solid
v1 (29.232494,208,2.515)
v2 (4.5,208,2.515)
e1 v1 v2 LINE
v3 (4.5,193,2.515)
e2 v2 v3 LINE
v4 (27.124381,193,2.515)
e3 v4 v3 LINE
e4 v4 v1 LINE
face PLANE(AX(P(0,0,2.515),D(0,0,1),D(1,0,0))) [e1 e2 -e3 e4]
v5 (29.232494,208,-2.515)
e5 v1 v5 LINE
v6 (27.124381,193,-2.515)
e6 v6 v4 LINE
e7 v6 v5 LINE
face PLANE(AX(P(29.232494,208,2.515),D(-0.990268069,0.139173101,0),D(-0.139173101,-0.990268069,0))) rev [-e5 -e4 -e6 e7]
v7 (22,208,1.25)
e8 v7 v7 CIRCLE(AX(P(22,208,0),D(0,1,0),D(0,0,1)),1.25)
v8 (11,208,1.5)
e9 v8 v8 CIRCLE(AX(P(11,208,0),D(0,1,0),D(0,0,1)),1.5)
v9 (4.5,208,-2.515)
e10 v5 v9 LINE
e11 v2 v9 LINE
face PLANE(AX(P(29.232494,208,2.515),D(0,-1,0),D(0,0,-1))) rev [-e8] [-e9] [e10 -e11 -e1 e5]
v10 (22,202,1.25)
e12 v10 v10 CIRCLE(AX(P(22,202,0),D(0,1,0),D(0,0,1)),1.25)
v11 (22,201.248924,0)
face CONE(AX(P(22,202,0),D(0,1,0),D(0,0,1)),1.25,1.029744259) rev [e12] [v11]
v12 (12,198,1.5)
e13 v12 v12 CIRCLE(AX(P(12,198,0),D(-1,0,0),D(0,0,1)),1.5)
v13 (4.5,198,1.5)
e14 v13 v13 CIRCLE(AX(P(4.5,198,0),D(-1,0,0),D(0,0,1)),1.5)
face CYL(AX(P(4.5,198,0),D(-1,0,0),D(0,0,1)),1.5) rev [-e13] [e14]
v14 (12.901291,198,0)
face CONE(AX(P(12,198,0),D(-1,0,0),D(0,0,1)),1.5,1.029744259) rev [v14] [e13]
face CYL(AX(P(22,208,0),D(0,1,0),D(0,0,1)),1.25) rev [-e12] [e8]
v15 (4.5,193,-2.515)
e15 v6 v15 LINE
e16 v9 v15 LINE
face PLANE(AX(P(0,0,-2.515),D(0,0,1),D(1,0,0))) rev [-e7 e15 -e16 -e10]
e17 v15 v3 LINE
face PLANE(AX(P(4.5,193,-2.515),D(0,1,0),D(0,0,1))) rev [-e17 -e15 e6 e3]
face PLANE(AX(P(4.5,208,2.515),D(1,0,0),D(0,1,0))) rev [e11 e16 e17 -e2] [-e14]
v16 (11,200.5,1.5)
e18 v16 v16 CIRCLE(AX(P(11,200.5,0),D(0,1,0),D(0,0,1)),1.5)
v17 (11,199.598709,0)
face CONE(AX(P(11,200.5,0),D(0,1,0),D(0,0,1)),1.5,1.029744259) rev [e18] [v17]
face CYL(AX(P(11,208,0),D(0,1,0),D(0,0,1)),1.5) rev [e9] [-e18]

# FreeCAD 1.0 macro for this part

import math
import FreeCAD as App
import Part
import Sketcher

V = App.Vector
Q = App.Units.Quantity

doc = App.newDocument("Part")
params = doc.addObject("Spreadsheet::Sheet", "Params")
for row, (alias, value) in enumerate([
    ("sketch1_radius", "20 mm"),
    ("sketch1_radius2", "48 mm"),
    ("pad1_length", "5.03 mm"),
    ("sketch2_width", "7.5 mm"),
    ("sketch2_height", "1.5 mm"),
    ("groove_angle", "360 deg"),
    ("linearpattern_pitch", "37 mm"),
    ("linearpattern2_pitch", "74 mm"),
    ("linearpattern3_pitch", "111 mm"),
    ("linearpattern4_pitch", "148 mm"),
    ("sketch3_width", "7.5 mm"),
    ("sketch3_height", "1.5 mm"),
    ("groove2_angle", "360 deg"),
    ("sketch4_width", "7.5 mm"),
    ("sketch4_height", "1.5 mm"),
    ("groove3_angle", "360 deg"),
    ("sketch5_width", "7.5 mm"),
    ("sketch5_height", "1.5 mm"),
    ("groove4_angle", "360 deg"),
    ("sketch6_width", "7.5 mm"),
    ("sketch6_height", "1.5 mm"),
    ("groove5_angle", "360 deg"),
    ("sketch7_radius", "20 mm"),
    ("sketch7_radius2", "48 mm"),
    ("sketch8_diameter", "3 mm"),
    ("hole_diameter", "3 mm"),
    ("hole_depth", "7.5 mm"),
    ("sketch9_diameter", "2.5 mm"),
    ("hole2_diameter", "2.5 mm"),
    ("hole2_depth", "6 mm"),
], start=1):
    params.set(f"A{row}", alias)
    params.set(f"B{row}", "=" + value)
    params.setAlias(f"B{row}", alias)

body = doc.addObject("PartDesign::Body", "Body")

# Sketch on XY plane
sketch1 = body.newObject("Sketcher::SketchObject", "Sketch")
sketch1.AttachmentSupport = (doc.getObject("XY_Plane"), [""])
sketch1.MapMode = "FlatFace"
sketch1.addGeometry([
    Part.LineSegment(V(29, 208, 0), V(4, 208, 0)),  # 0
    Part.LineSegment(V(4, 208, 0), V(4, 38, 0)),  # 1
    Part.ArcOfCircle(Part.Circle(V(0, 0, 0), V(0, 0, 1), 38), math.radians(-83), math.radians(83)),  # 2
    Part.LineSegment(V(4, -38, 0), V(4, -208, 0)),  # 3
    Part.LineSegment(V(4, -208, 0), V(29, -208, 0)),  # 4
    Part.LineSegment(V(29, -208, 0), V(12, -85, 0)),  # 5
    Part.LineSegment(V(12, -85, 0), V(12, -60, 0)),  # 6
    Part.ArcOfCircle(Part.Circle(V(32, -60, 0), V(0, 0, 1), 20), math.radians(118), math.radians(180)),  # 7
    Part.ArcOfCircle(Part.Circle(V(0, 0, 0), V(0, 0, 1), 48), math.radians(-62), math.radians(62)),  # 8
    Part.ArcOfCircle(Part.Circle(V(32, 60, 0), V(0, 0, 1), 20), math.radians(180), math.radians(242)),  # 9
    Part.LineSegment(V(12, 60, 0), V(12, 85, 0)),  # 10
    Part.LineSegment(V(12, 85, 0), V(29, 208, 0)),  # 11
], False)
sketch1.addConstraint([
    Sketcher.Constraint("Coincident", 0, 2, 1, 1),
    Sketcher.Constraint("Coincident", 1, 2, 2, 2),
    Sketcher.Constraint("Coincident", 2, 1, 3, 1),
    Sketcher.Constraint("Coincident", 3, 2, 4, 1),
    Sketcher.Constraint("Coincident", 4, 2, 5, 1),
    Sketcher.Constraint("Coincident", 5, 2, 6, 1),
    Sketcher.Constraint("Tangent", 6, 2, 7, 2),
    Sketcher.Constraint("Tangent", 7, 1, 8, 1),
    Sketcher.Constraint("Tangent", 8, 2, 9, 2),
    Sketcher.Constraint("Tangent", 9, 1, 10, 1),
    Sketcher.Constraint("Coincident", 10, 2, 11, 1),
    Sketcher.Constraint("Coincident", 11, 2, 0, 1),
    Sketcher.Constraint("Horizontal", 0),
    Sketcher.Constraint("Vertical", 1),
    Sketcher.Constraint("Vertical", 3),
    Sketcher.Constraint("Horizontal", 4),
    Sketcher.Constraint("Vertical", 6),
    Sketcher.Constraint("Vertical", 10),
    Sketcher.Constraint("Coincident", 2, 3, -1, 1),
    Sketcher.Constraint("Coincident", 8, 3, -1, 1),
    Sketcher.Constraint("Equal", 7, 9),
    Sketcher.Constraint("Symmetric", 0, 2, 3, 2, -1),
    Sketcher.Constraint("Symmetric", 5, 2, 10, 2, -1),
    Sketcher.Constraint("Vertical", 4, 2, 11, 2),
    Sketcher.Constraint("Radius", 7, 20.0),
    Sketcher.Constraint("Radius", 8, 48.0),
    Sketcher.Constraint("Angle", 5, Q("98 deg")),
    Sketcher.Constraint("DistanceX", -1, 1, 7, 3, 32.0),
    Sketcher.Constraint("DistanceY", -1, 1, 0, 2, 208.0),
    Sketcher.Constraint("DistanceX", -1, 1, 0, 2, 4.5),
    Sketcher.Constraint("Radius", 2, 38.140072),
    Sketcher.Constraint("DistanceX", 0, 2, 0, 1, 24.732494),
])
sketch1.setExpression("Constraints[24]", "Params.sketch1_radius")
sketch1.setExpression("Constraints[25]", "Params.sketch1_radius2")
pad1 = body.newObject("PartDesign::Pad", "Pad")
pad1.Profile = sketch1
pad1.setExpression("Length", "Params.pad1_length")
pad1.Midplane = True

# Sketch on XZ plane
sketch2 = body.newObject("Sketcher::SketchObject", "Sketch001")
sketch2.AttachmentSupport = (doc.getObject("XZ_Plane"), [""])
sketch2.MapMode = "FlatFace"
sketch2.AttachmentOffset = App.Placement(V(0, 0, -198), App.Rotation())
sketch2.addGeometry([
    Part.LineSegment(V(12.9, 0, 0), V(4.5, 0, 0)),
    Part.LineSegment(V(4.5, 0, 0), V(4.5, 1.5, 0)),
    Part.LineSegment(V(4.5, 1.5, 0), V(12, 1.5, 0)),
    Part.LineSegment(V(12, 1.5, 0), V(12.9, 0, 0)),
], False)
sketch2.addConstraint([
    Sketcher.Constraint("Coincident", 0, 2, 1, 1),
    Sketcher.Constraint("Coincident", 1, 2, 2, 1),
    Sketcher.Constraint("Coincident", 2, 2, 3, 1),
    Sketcher.Constraint("Coincident", 3, 2, 0, 1),
    Sketcher.Constraint("Horizontal", 0),
    Sketcher.Constraint("Vertical", 1),
    Sketcher.Constraint("Horizontal", 2),
    Sketcher.Constraint("PointOnObject", 0, 2, -1),
    Sketcher.Constraint("Angle", 3, Q("-59 deg")),
    Sketcher.Constraint("DistanceX", 2, 1, 2, 2, 7.5),
    Sketcher.Constraint("DistanceY", 1, 1, 1, 2, 1.5),
    Sketcher.Constraint("DistanceX", -1, 1, 2, 2, 12.0),
])
sketch2.setExpression("Constraints[9]", "Params.sketch2_width")
sketch2.setExpression("Constraints[10]", "Params.sketch2_height")
groove = body.newObject("PartDesign::Groove", "Groove")
groove.Profile = sketch2
groove.ReferenceAxis = (sketch2, ["H_Axis"])
groove.setExpression("Angle", "Params.groove_angle")
doc.recompute()

linearpattern = body.newObject("PartDesign::LinearPattern", "LinearPattern")
linearpattern.Originals = [groove]
linearpattern.Direction = (doc.getObject("Y_Axis"), [""])
linearpattern.Mode = "offset"
linearpattern.setExpression("Offset", "Params.linearpattern_pitch")
linearpattern.Occurrences = 2
linearpattern.Reversed = True
body.Tip = linearpattern
doc.recompute()

linearpattern2 = body.newObject("PartDesign::LinearPattern", "LinearPattern001")
linearpattern2.Originals = [groove]
linearpattern2.Direction = (doc.getObject("Y_Axis"), [""])
linearpattern2.Mode = "offset"
linearpattern2.setExpression("Offset", "Params.linearpattern2_pitch")
linearpattern2.Occurrences = 2
linearpattern2.Reversed = True
body.Tip = linearpattern2
doc.recompute()

linearpattern3 = body.newObject("PartDesign::LinearPattern", "LinearPattern002")
linearpattern3.Originals = [groove]
linearpattern3.Direction = (doc.getObject("Y_Axis"), [""])
linearpattern3.Mode = "offset"
linearpattern3.setExpression("Offset", "Params.linearpattern3_pitch")
linearpattern3.Occurrences = 2
linearpattern3.Reversed = True
body.Tip = linearpattern3
doc.recompute()

linearpattern4 = body.newObject("PartDesign::LinearPattern", "LinearPattern003")
linearpattern4.Originals = [groove]
linearpattern4.Direction = (doc.getObject("Y_Axis"), [""])
linearpattern4.Mode = "offset"
linearpattern4.setExpression("Offset", "Params.linearpattern4_pitch")
linearpattern4.Occurrences = 2
linearpattern4.Reversed = True
body.Tip = linearpattern4
doc.recompute()

mirrored = body.newObject("PartDesign::Mirrored", "Mirrored")
mirrored.Originals = [groove]
mirrored.MirrorPlane = (doc.getObject("XZ_Plane"), [""])
body.Tip = mirrored

# Sketch on XZ plane
sketch3 = body.newObject("Sketcher::SketchObject", "Sketch002")
sketch3.AttachmentSupport = (doc.getObject("XZ_Plane"), [""])
sketch3.MapMode = "FlatFace"
sketch3.AttachmentOffset = App.Placement(V(0, 0, 161), App.Rotation())
sketch3.addGeometry([
    Part.LineSegment(V(4.5, 0, 0), V(12.9, 0, 0)),
    Part.LineSegment(V(12.9, 0, 0), V(12, 1.5, 0)),
    Part.LineSegment(V(12, 1.5, 0), V(4.5, 1.5, 0)),
    Part.LineSegment(V(4.5, 1.5, 0), V(4.5, 0, 0)),
], False)
sketch3.addConstraint([
    Sketcher.Constraint("Coincident", 0, 2, 1, 1),
    Sketcher.Constraint("Coincident", 1, 2, 2, 1),
    Sketcher.Constraint("Coincident", 2, 2, 3, 1),
    Sketcher.Constraint("Coincident", 3, 2, 0, 1),
    Sketcher.Constraint("Horizontal", 0),
    Sketcher.Constraint("Horizontal", 2),
    Sketcher.Constraint("Vertical", 3),
    Sketcher.Constraint("PointOnObject", 0, 2, -1),
    Sketcher.Constraint("Angle", 1, Q("121 deg")),
    Sketcher.Constraint("DistanceX", 2, 2, 2, 1, 7.5),
    Sketcher.Constraint("DistanceY", 3, 2, 3, 1, 1.5),
    Sketcher.Constraint("DistanceX", -1, 1, 1, 2, 12.0),
])
sketch3.setExpression("Constraints[9]", "Params.sketch3_width")
sketch3.setExpression("Constraints[10]", "Params.sketch3_height")
groove2 = body.newObject("PartDesign::Groove", "Groove001")
groove2.Profile = sketch3
groove2.ReferenceAxis = (sketch3, ["H_Axis"])
groove2.setExpression("Angle", "Params.groove2_angle")

# Sketch on XZ plane
sketch4 = body.newObject("Sketcher::SketchObject", "Sketch003")
sketch4.AttachmentSupport = (doc.getObject("XZ_Plane"), [""])
sketch4.MapMode = "FlatFace"
sketch4.AttachmentOffset = App.Placement(V(0, 0, 124), App.Rotation())
sketch4.addGeometry([
    Part.LineSegment(V(4.5, 0, 0), V(12.9, 0, 0)),
    Part.LineSegment(V(12.9, 0, 0), V(12, 1.5, 0)),
    Part.LineSegment(V(12, 1.5, 0), V(4.5, 1.5, 0)),
    Part.LineSegment(V(4.5, 1.5, 0), V(4.5, 0, 0)),
], False)
sketch4.addConstraint([
    Sketcher.Constraint("Coincident", 0, 2, 1, 1),
    Sketcher.Constraint("Coincident", 1, 2, 2, 1),
    Sketcher.Constraint("Coincident", 2, 2, 3, 1),
    Sketcher.Constraint("Coincident", 3, 2, 0, 1),
    Sketcher.Constraint("Horizontal", 0),
    Sketcher.Constraint("Horizontal", 2),
    Sketcher.Constraint("Vertical", 3),
    Sketcher.Constraint("PointOnObject", 0, 2, -1),
    Sketcher.Constraint("Angle", 1, Q("121 deg")),
    Sketcher.Constraint("DistanceX", 2, 2, 2, 1, 7.5),
    Sketcher.Constraint("DistanceY", 3, 2, 3, 1, 1.5),
    Sketcher.Constraint("DistanceX", -1, 1, 1, 2, 12.0),
])
sketch4.setExpression("Constraints[9]", "Params.sketch4_width")
sketch4.setExpression("Constraints[10]", "Params.sketch4_height")
groove3 = body.newObject("PartDesign::Groove", "Groove002")
groove3.Profile = sketch4
groove3.ReferenceAxis = (sketch4, ["H_Axis"])
groove3.setExpression("Angle", "Params.groove3_angle")

# Sketch on XZ plane
sketch5 = body.newObject("Sketcher::SketchObject", "Sketch004")
sketch5.AttachmentSupport = (doc.getObject("XZ_Plane"), [""])
sketch5.MapMode = "FlatFace"
sketch5.AttachmentOffset = App.Placement(V(0, 0, 87), App.Rotation())
sketch5.addGeometry([
    Part.LineSegment(V(4.5, 0, 0), V(12.9, 0, 0)),
    Part.LineSegment(V(12.9, 0, 0), V(12, 1.5, 0)),
    Part.LineSegment(V(12, 1.5, 0), V(4.5, 1.5, 0)),
    Part.LineSegment(V(4.5, 1.5, 0), V(4.5, 0, 0)),
], False)
sketch5.addConstraint([
    Sketcher.Constraint("Coincident", 0, 2, 1, 1),
    Sketcher.Constraint("Coincident", 1, 2, 2, 1),
    Sketcher.Constraint("Coincident", 2, 2, 3, 1),
    Sketcher.Constraint("Coincident", 3, 2, 0, 1),
    Sketcher.Constraint("Horizontal", 0),
    Sketcher.Constraint("Horizontal", 2),
    Sketcher.Constraint("Vertical", 3),
    Sketcher.Constraint("PointOnObject", 0, 2, -1),
    Sketcher.Constraint("Angle", 1, Q("121 deg")),
    Sketcher.Constraint("DistanceX", 2, 2, 2, 1, 7.5),
    Sketcher.Constraint("DistanceY", 3, 2, 3, 1, 1.5),
    Sketcher.Constraint("DistanceX", -1, 1, 1, 2, 12.0),
])
sketch5.setExpression("Constraints[9]", "Params.sketch5_width")
sketch5.setExpression("Constraints[10]", "Params.sketch5_height")
groove4 = body.newObject("PartDesign::Groove", "Groove003")
groove4.Profile = sketch5
groove4.ReferenceAxis = (sketch5, ["H_Axis"])
groove4.setExpression("Angle", "Params.groove4_angle")

# Sketch on XZ plane
sketch6 = body.newObject("Sketcher::SketchObject", "Sketch005")
sketch6.AttachmentSupport = (doc.getObject("XZ_Plane"), [""])
sketch6.MapMode = "FlatFace"
sketch6.AttachmentOffset = App.Placement(V(0, 0, 50), App.Rotation())
sketch6.addGeometry([
    Part.LineSegment(V(4.5, 0, 0), V(12.9, 0, 0)),
    Part.LineSegment(V(12.9, 0, 0), V(12, 1.5, 0)),
    Part.LineSegment(V(12, 1.5, 0), V(4.5, 1.5, 0)),
    Part.LineSegment(V(4.5, 1.5, 0), V(4.5, 0, 0)),
], False)
sketch6.addConstraint([
    Sketcher.Constraint("Coincident", 0, 2, 1, 1),
    Sketcher.Constraint("Coincident", 1, 2, 2, 1),
    Sketcher.Constraint("Coincident", 2, 2, 3, 1),
    Sketcher.Constraint("Coincident", 3, 2, 0, 1),
    Sketcher.Constraint("Horizontal", 0),
    Sketcher.Constraint("Horizontal", 2),
    Sketcher.Constraint("Vertical", 3),
    Sketcher.Constraint("PointOnObject", 0, 2, -1),
    Sketcher.Constraint("Angle", 1, Q("121 deg")),
    Sketcher.Constraint("DistanceX", 2, 2, 2, 1, 7.5),
    Sketcher.Constraint("DistanceY", 3, 2, 3, 1, 1.5),
    Sketcher.Constraint("DistanceX", -1, 1, 1, 2, 12.0),
])
sketch6.setExpression("Constraints[9]", "Params.sketch6_width")
sketch6.setExpression("Constraints[10]", "Params.sketch6_height")
groove5 = body.newObject("PartDesign::Groove", "Groove004")
groove5.Profile = sketch6
groove5.ReferenceAxis = (sketch6, ["H_Axis"])
groove5.setExpression("Angle", "Params.groove5_angle")

# Sketch on XY plane
sketch7 = body.newObject("Sketcher::SketchObject", "Sketch006")
sketch7.AttachmentSupport = (doc.getObject("XY_Plane"), [""])
sketch7.MapMode = "FlatFace"
sketch7.AttachmentOffset = App.Placement(V(0, 0, 2.515), App.Rotation())
sketch7.addGeometry([
    Part.LineSegment(V(27, 193, 0), V(4, 193, 0)),  # 0
    Part.LineSegment(V(4, 193, 0), V(4, 38, 0)),  # 1
    Part.ArcOfCircle(Part.Circle(V(0, 0, 0), V(0, 0, 1), 38), math.radians(-83), math.radians(83)),  # 2
    Part.LineSegment(V(4, -38, 0), V(4, -208, 0)),  # 3
    Part.LineSegment(V(4, -208, 0), V(29, -208, 0)),  # 4
    Part.LineSegment(V(29, -208, 0), V(12, -85, 0)),  # 5
    Part.LineSegment(V(12, -85, 0), V(12, -60, 0)),  # 6
    Part.ArcOfCircle(Part.Circle(V(32, -60, 0), V(0, 0, 1), 20), math.radians(118), math.radians(180)),  # 7
    Part.ArcOfCircle(Part.Circle(V(0, 0, 0), V(0, 0, 1), 48), math.radians(-62), math.radians(62)),  # 8
    Part.ArcOfCircle(Part.Circle(V(32, 60, 0), V(0, 0, 1), 20), math.radians(180), math.radians(242)),  # 9
    Part.LineSegment(V(12, 60, 0), V(12, 85, 0)),  # 10
    Part.LineSegment(V(12, 85, 0), V(27, 193, 0)),  # 11
], False)
sketch7.addConstraint([
    Sketcher.Constraint("Coincident", 0, 2, 1, 1),
    Sketcher.Constraint("Coincident", 1, 2, 2, 2),
    Sketcher.Constraint("Coincident", 2, 1, 3, 1),
    Sketcher.Constraint("Coincident", 3, 2, 4, 1),
    Sketcher.Constraint("Coincident", 4, 2, 5, 1),
    Sketcher.Constraint("Coincident", 5, 2, 6, 1),
    Sketcher.Constraint("Tangent", 6, 2, 7, 2),
    Sketcher.Constraint("Tangent", 7, 1, 8, 1),
    Sketcher.Constraint("Tangent", 8, 2, 9, 2),
    Sketcher.Constraint("Tangent", 9, 1, 10, 1),
    Sketcher.Constraint("Coincident", 10, 2, 11, 1),
    Sketcher.Constraint("Coincident", 11, 2, 0, 1),
    Sketcher.Constraint("Horizontal", 0),
    Sketcher.Constraint("Vertical", 1),
    Sketcher.Constraint("Vertical", 3),
    Sketcher.Constraint("Horizontal", 4),
    Sketcher.Constraint("Vertical", 6),
    Sketcher.Constraint("Vertical", 10),
    Sketcher.Constraint("Coincident", 2, 3, -1, 1),
    Sketcher.Constraint("Coincident", 8, 3, -1, 1),
    Sketcher.Constraint("Equal", 7, 9),
    Sketcher.Constraint("Symmetric", 5, 2, 10, 2, -1),
    Sketcher.Constraint("Vertical", 1, 2, 2, 1),
    Sketcher.Constraint("Radius", 7, 20.0),
    Sketcher.Constraint("Radius", 8, 48.0),
    Sketcher.Constraint("Angle", 5, Q("98 deg")),
    Sketcher.Constraint("Angle", 11, Q("82 deg")),
    Sketcher.Constraint("DistanceX", -1, 1, 7, 3, 32.0),
    Sketcher.Constraint("DistanceY", -1, 1, 0, 2, 193.0),
    Sketcher.Constraint("DistanceY", 3, 2, -1, 1, 208.0),
    Sketcher.Constraint("DistanceX", -1, 1, 0, 2, 4.5),
    Sketcher.Constraint("Radius", 2, 38.140072),
    Sketcher.Constraint("DistanceX", 0, 2, 0, 1, 22.624381),
])
sketch7.setExpression("Constraints[23]", "Params.sketch7_radius")
sketch7.setExpression("Constraints[24]", "Params.sketch7_radius2")
pocket1 = body.newObject("PartDesign::Pocket", "Pocket")
pocket1.Profile = sketch7
pocket1.Type = "ThroughAll"

# Sketch on XZ plane
sketch8 = body.newObject("Sketcher::SketchObject", "Sketch007")
sketch8.AttachmentSupport = (doc.getObject("XZ_Plane"), [""])
sketch8.MapMode = "FlatFace"
sketch8.AttachmentOffset = App.Placement(V(0, 0, -208), App.Rotation())
sketch8.addGeometry(Part.Circle(V(11, 0, 0), V(0, 0, 1), 1.5), False)
sketch8.addConstraint([
    Sketcher.Constraint("PointOnObject", 0, 3, -1),
    Sketcher.Constraint("Diameter", 0, 3.0),
    Sketcher.Constraint("DistanceX", -1, 1, 0, 3, 11.0),
])
sketch8.setExpression("Constraints[1]", "Params.sketch8_diameter")
doc.recompute()
hole = body.newObject("PartDesign::Hole", "Hole")
hole.Profile = sketch8
hole.ThreadType = "None"
hole.setExpression("Diameter", "Params.hole_diameter")
hole.DepthType = "Dimension"
hole.setExpression("Depth", "Params.hole_depth")
hole.DrillPoint = "Angled"
hole.DrillPointAngle = 118
hole.Reversed = True

# Sketch on XZ plane
sketch9 = body.newObject("Sketcher::SketchObject", "Sketch008")
sketch9.AttachmentSupport = (doc.getObject("XZ_Plane"), [""])
sketch9.MapMode = "FlatFace"
sketch9.AttachmentOffset = App.Placement(V(0, 0, -208), App.Rotation())
sketch9.addGeometry(Part.Circle(V(22, 0, 0), V(0, 0, 1), 1.2), False)
sketch9.addConstraint([
    Sketcher.Constraint("PointOnObject", 0, 3, -1),
    Sketcher.Constraint("Diameter", 0, 2.5),
    Sketcher.Constraint("DistanceX", -1, 1, 0, 3, 22.0),
])
sketch9.setExpression("Constraints[1]", "Params.sketch9_diameter")
doc.recompute()
hole2 = body.newObject("PartDesign::Hole", "Hole001")
hole2.Profile = sketch9
hole2.ThreadType = "None"
hole2.setExpression("Diameter", "Params.hole2_diameter")
hole2.DepthType = "Dimension"
hole2.setExpression("Depth", "Params.hole2_depth")
hole2.DrillPoint = "Angled"
hole2.DrillPointAngle = 118
hole2.Reversed = True

doc.recompute()
